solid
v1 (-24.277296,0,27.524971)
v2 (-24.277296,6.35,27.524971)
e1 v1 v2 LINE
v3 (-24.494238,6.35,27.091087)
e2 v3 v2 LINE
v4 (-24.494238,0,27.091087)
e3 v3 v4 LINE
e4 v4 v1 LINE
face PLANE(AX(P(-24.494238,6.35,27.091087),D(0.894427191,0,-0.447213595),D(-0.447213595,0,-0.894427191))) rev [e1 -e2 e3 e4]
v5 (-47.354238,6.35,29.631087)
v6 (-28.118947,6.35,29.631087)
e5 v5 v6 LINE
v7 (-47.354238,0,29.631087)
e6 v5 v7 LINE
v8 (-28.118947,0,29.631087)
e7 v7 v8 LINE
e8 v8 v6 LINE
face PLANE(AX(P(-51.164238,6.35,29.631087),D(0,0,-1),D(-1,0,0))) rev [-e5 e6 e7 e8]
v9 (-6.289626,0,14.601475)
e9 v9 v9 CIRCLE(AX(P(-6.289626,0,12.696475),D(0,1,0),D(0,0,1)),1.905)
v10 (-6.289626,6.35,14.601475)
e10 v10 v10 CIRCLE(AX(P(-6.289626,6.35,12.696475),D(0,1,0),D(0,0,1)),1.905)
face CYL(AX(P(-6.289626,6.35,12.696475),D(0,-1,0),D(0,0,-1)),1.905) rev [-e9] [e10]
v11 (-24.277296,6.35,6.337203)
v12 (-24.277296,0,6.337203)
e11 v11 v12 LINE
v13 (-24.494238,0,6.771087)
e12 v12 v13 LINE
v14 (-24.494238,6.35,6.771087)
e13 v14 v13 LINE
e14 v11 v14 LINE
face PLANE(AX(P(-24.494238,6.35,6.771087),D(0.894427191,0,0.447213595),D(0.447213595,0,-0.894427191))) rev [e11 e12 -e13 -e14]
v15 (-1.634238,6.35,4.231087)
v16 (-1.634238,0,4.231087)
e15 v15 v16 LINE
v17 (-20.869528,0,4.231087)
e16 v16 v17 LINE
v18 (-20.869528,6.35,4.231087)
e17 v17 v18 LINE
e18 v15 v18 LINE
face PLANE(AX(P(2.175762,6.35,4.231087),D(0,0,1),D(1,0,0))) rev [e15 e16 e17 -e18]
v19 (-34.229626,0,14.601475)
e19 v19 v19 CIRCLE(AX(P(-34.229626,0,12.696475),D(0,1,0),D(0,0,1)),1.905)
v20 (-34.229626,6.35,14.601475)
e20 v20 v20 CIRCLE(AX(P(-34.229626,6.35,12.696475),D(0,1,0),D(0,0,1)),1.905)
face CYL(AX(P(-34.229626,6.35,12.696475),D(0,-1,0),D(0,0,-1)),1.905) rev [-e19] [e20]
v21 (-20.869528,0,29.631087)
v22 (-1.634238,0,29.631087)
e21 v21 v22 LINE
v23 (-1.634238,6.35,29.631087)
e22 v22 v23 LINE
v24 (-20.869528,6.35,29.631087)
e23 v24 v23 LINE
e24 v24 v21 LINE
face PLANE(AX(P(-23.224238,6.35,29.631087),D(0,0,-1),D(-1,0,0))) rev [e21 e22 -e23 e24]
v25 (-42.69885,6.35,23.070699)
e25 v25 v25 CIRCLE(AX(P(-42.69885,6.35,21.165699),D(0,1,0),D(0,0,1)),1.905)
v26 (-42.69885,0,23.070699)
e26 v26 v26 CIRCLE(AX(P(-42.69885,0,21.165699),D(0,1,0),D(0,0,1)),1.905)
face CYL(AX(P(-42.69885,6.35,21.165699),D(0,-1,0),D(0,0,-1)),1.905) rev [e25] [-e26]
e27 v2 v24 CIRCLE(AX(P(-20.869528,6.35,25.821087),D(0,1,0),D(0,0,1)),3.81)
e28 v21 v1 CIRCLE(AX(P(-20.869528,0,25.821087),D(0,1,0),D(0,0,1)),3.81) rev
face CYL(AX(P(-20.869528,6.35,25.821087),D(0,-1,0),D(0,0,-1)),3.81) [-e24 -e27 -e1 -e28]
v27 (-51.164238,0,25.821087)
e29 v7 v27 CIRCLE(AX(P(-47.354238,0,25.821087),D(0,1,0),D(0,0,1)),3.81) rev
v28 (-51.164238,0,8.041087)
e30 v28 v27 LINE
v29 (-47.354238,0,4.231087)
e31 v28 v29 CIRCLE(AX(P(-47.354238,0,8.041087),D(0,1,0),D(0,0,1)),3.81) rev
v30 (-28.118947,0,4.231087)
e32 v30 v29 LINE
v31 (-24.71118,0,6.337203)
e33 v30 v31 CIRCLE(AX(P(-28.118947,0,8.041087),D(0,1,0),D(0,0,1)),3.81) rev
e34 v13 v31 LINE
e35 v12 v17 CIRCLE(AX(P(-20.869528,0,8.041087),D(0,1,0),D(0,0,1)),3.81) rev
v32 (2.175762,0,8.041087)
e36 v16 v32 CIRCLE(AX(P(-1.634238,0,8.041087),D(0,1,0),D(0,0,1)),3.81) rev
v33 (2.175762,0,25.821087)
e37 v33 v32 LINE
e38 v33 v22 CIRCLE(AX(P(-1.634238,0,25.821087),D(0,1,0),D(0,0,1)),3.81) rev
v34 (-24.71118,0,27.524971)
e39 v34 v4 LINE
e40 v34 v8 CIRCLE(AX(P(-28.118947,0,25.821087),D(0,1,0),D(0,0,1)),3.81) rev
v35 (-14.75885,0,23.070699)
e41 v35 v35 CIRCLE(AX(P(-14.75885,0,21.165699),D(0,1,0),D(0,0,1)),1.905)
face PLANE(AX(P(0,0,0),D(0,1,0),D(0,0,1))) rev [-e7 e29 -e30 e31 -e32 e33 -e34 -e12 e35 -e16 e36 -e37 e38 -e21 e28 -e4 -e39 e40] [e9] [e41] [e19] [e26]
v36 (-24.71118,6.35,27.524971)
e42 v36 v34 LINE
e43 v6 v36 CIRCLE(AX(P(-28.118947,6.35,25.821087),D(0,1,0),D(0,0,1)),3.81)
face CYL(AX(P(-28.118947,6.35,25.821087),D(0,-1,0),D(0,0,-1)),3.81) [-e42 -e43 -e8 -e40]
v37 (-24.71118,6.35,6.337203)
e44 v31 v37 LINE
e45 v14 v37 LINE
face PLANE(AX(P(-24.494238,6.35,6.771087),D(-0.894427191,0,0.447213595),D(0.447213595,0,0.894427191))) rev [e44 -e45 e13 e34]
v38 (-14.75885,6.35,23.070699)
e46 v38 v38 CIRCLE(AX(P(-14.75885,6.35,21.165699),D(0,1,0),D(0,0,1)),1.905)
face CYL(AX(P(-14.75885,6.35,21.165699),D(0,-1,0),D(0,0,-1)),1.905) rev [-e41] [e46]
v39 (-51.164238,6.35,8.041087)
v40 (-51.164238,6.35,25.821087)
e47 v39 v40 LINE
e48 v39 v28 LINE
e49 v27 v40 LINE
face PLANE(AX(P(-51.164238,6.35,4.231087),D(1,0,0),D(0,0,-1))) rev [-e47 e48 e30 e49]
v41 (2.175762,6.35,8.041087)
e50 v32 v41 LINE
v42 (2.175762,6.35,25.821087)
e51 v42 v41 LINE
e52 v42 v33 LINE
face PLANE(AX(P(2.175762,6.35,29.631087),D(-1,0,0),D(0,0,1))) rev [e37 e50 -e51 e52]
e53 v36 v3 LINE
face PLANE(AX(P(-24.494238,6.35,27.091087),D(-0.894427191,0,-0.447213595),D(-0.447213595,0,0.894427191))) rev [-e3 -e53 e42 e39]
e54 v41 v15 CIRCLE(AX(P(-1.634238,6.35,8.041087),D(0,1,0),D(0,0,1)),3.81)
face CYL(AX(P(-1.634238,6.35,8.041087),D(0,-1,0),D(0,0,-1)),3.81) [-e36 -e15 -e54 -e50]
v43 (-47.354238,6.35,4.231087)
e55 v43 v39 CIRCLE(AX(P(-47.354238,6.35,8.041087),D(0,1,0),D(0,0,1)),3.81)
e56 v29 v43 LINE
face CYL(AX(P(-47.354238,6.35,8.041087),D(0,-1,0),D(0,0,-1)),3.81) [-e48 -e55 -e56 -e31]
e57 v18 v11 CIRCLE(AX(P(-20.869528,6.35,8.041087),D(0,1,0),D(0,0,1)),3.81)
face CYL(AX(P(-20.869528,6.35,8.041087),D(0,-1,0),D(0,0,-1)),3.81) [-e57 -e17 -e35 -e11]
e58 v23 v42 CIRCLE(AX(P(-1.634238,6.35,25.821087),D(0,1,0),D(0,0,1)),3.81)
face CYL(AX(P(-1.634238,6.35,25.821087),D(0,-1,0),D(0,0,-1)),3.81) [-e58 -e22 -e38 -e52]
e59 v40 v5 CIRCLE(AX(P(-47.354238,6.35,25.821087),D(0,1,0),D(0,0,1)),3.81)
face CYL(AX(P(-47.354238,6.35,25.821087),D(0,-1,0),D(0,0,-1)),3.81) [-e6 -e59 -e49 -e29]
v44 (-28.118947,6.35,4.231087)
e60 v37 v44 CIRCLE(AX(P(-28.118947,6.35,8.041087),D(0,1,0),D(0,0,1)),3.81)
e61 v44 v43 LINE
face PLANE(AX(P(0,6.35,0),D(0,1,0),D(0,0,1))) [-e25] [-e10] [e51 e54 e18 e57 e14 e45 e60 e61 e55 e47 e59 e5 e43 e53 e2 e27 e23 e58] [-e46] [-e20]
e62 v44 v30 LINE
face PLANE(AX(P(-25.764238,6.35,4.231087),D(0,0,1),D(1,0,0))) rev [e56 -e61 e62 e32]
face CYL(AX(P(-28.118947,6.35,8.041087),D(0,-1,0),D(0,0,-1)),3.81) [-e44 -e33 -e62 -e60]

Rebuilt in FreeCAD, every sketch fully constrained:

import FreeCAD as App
import Part
import Sketcher

V = App.Vector
Q = App.Units.Quantity


def edges_at(feature, points):
    """Names of the edges that pass closest to the given points."""
    edges = feature.Shape.Edges
    near = lambda p: min(range(len(edges)), key=lambda i: edges[i].distToShape(Part.Vertex(*p))[0])
    return sorted({f"Edge{near(p) + 1}" for p in points})


def add_polygon(sketch, points):
    """Adds a closed chain of lines whose ends are joined by coincident constraints."""
    first, n = sketch.GeometryCount, len(points)
    for a, b in zip(points, points[1:] + points[:1]):
        sketch.addGeometry(Part.LineSegment(App.Vector(*a, 0), App.Vector(*b, 0)), False)
    for i in range(n):
        sketch.addConstraint(Sketcher.Constraint("Coincident", first + i, 2, first + (i + 1) % n, 1))

doc = App.newDocument("Part")
body = doc.addObject("PartDesign::Body", "Body")

sketch1 = doc.addObject("Sketcher::SketchObject", "Sketch")
body.addObject(sketch1)
sketch1.AttachmentSupport = (doc.XZ_Plane, [""])
sketch1.MapMode = "FlatFace"
add_polygon(sketch1, [(-51.2, 4.2), (-51.2, 29.6), (-25.8, 29.6), (-24.5, 27.1), (-23.2, 29.6), (2.2, 29.6), (2.2, 4.2), (-23.2, 4.2), (-24.5, 6.8), (-25.8, 4.2)])
sketch1.addGeometry(Part.Circle(V(-42.7, 21.2, 0), V(0, 0, 1), 1.9), False)
sketch1.addGeometry(Part.Circle(V(-14.8, 21.2, 0), V(0, 0, 1), 1.9), False)
sketch1.addGeometry(Part.Circle(V(-34.2, 12.7, 0), V(0, 0, 1), 1.9), False)
sketch1.addGeometry(Part.Circle(V(-6.3, 12.7, 0), V(0, 0, 1), 1.9), False)
sketch1.addConstraint([
    Sketcher.Constraint("Vertical", 0),
    Sketcher.Constraint("Horizontal", 1),
    Sketcher.Constraint("Horizontal", 4),
    Sketcher.Constraint("Vertical", 5),
    Sketcher.Constraint("Horizontal", 6),
    Sketcher.Constraint("Horizontal", 9),
    Sketcher.Constraint("Equal", 10, 11),
    Sketcher.Constraint("Equal", 11, 12),
    Sketcher.Constraint("Equal", 12, 13),
    Sketcher.Constraint("Parallel", 2, 7),
    Sketcher.Constraint("Parallel", 3, 8),
    Sketcher.Constraint("Horizontal", 10, 3, 11, 3),
    Sketcher.Constraint("Horizontal", 12, 3, 13, 3),
    Sketcher.Constraint("Horizontal", 1, 2, 3, 2),
    Sketcher.Constraint("Horizontal", 6, 2, 8, 2),
    Sketcher.Constraint("Vertical", 3, 2, 6, 2),
    Sketcher.Constraint("Vertical", 2, 2, 7, 2),
    Sketcher.Constraint("Vertical", 1, 2, 8, 2),
    Sketcher.Constraint("Equal", 1, 4),
    Sketcher.Constraint("Equal", 9, 0),
    Sketcher.Constraint("Diameter", 10, Q("0.15 in")),
    Sketcher.Constraint("DistanceX", 1, 1, 1, 2, Q("1 in")),
    Sketcher.Constraint("DistanceX", 10, 3, 11, 3, Q("1.1 in")),
    Sketcher.Constraint("DistanceX", 12, 3, 13, 3, Q("1.1 in")),
    Sketcher.Constraint("DistanceY", 2, 2, 1, 2, Q("0.1 in")),
    Sketcher.Constraint("DistanceX", 1, 2, 3, 2, Q("0.1 in")),
    Sketcher.Constraint("DistanceY", -1, 1, 10, 3, 21.165699),
    Sketcher.Constraint("DistanceX", 10, 3, -1, 1, 42.69885),
    Sketcher.Constraint("DistanceX", 0, 2, 10, 3, 8.465388),
    Sketcher.Constraint("DistanceY", 10, 3, 0, 2, 8.465388),
    Sketcher.Constraint("DistanceX", 0, 2, 12, 3, 16.934612),
    Sketcher.Constraint("DistanceY", 12, 3, 0, 2, 16.934612),
])
pad1 = doc.addObject("PartDesign::Pad", "Pad")
body.addObject(pad1)
pad1.Profile = sketch1
pad1.Length = Q("0.25 in")
pad1.Reversed = True
doc.recompute()

fillet = doc.addObject("PartDesign::Fillet", "Fillet")
body.addObject(fillet)
fillet.Base = (pad1, edges_at(pad1, [
    (-51.164, 3.175, 29.631),
    (-51.164, 3.175, 4.231),
    (-25.764, 3.175, 4.231),
    (-23.224, 3.175, 4.231),
    (2.176, 3.175, 4.231),
    (2.176, 3.175, 29.631),
    (-23.224, 3.175, 29.631),
    (-25.764, 3.175, 29.631),
]))
fillet.Radius = Q("0.15 in")

doc.recompute()
